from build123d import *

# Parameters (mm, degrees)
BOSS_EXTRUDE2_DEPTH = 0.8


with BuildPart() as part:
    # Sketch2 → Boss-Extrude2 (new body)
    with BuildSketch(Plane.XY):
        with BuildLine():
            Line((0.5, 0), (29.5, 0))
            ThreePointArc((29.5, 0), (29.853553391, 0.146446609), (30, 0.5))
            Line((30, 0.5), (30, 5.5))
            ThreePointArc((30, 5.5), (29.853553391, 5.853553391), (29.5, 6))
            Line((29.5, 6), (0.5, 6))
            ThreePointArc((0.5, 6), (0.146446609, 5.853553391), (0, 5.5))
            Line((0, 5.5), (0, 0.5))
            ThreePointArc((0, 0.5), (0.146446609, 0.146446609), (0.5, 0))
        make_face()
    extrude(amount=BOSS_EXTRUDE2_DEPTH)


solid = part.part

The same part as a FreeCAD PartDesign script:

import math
import FreeCAD as App
import Part
import Sketcher
from FreeCAD import Vector

doc = App.newDocument("Part")
body = doc.addObject("PartDesign::Body", "Body")

sketch1 = body.newObject("Sketcher::SketchObject", "Sketch")
sketch1.AttachmentSupport = (doc.getObject("XY_Plane"), [""])
sketch1.MapMode = "FlatFace"
sketch1.addGeometry([
    Part.LineSegment(Vector(0.5, 0, 0), Vector(29.5, 0, 0)),
    Part.ArcOfCircle(Part.Circle(Vector(29.5, 0.5, 0), Vector(0, 0, 1), 0.5), math.radians(-90), math.radians(0)),
    Part.LineSegment(Vector(30, 0.5, 0), Vector(30, 5.5, 0)),
    Part.ArcOfCircle(Part.Circle(Vector(29.5, 5.5, 0), Vector(0, 0, 1), 0.5), math.radians(0), math.radians(90)),
    Part.LineSegment(Vector(29.5, 6, 0), Vector(0.5, 6, 0)),
    Part.ArcOfCircle(Part.Circle(Vector(0.5, 5.5, 0), Vector(0, 0, 1), 0.5), math.radians(90), math.radians(180)),
    Part.LineSegment(Vector(0, 5.5, 0), Vector(0, 0.5, 0)),
    Part.ArcOfCircle(Part.Circle(Vector(0.5, 0.5, 0), Vector(0, 0, 1), 0.5), math.radians(180), math.radians(270)),
], False)
sketch1.addConstraint([
    Sketcher.Constraint("Tangent", 0, 2, 1, 1),
    Sketcher.Constraint("Tangent", 1, 2, 2, 1),
    Sketcher.Constraint("Tangent", 2, 2, 3, 1),
    Sketcher.Constraint("Tangent", 3, 2, 4, 1),
    Sketcher.Constraint("Tangent", 4, 2, 5, 1),
    Sketcher.Constraint("Tangent", 5, 2, 6, 1),
    Sketcher.Constraint("Tangent", 6, 2, 7, 1),
    Sketcher.Constraint("Tangent", 7, 2, 0, 1),
    Sketcher.Constraint("Horizontal", 0),
    Sketcher.Constraint("Vertical", 2),
    Sketcher.Constraint("Horizontal", 4),
    Sketcher.Constraint("Vertical", 6),
    Sketcher.Constraint("Equal", 1, 3),
    Sketcher.Constraint("Equal", 3, 5),
    Sketcher.Constraint("Equal", 5, 7),
    Sketcher.Constraint("PointOnObject", 0, 2, -1),
    Sketcher.Constraint("PointOnObject", 5, 2, -2),
    Sketcher.Constraint("Radius", 1, 0.5),
    Sketcher.Constraint("DistanceX", 0, 1, 0, 2, 29.0),
    Sketcher.Constraint("DistanceY", 2, 1, 2, 2, 5.0),
])
pad1 = body.newObject("PartDesign::Pad", "Pad")
pad1.Profile = sketch1
pad1.Length = 0.8

doc.recompute()
